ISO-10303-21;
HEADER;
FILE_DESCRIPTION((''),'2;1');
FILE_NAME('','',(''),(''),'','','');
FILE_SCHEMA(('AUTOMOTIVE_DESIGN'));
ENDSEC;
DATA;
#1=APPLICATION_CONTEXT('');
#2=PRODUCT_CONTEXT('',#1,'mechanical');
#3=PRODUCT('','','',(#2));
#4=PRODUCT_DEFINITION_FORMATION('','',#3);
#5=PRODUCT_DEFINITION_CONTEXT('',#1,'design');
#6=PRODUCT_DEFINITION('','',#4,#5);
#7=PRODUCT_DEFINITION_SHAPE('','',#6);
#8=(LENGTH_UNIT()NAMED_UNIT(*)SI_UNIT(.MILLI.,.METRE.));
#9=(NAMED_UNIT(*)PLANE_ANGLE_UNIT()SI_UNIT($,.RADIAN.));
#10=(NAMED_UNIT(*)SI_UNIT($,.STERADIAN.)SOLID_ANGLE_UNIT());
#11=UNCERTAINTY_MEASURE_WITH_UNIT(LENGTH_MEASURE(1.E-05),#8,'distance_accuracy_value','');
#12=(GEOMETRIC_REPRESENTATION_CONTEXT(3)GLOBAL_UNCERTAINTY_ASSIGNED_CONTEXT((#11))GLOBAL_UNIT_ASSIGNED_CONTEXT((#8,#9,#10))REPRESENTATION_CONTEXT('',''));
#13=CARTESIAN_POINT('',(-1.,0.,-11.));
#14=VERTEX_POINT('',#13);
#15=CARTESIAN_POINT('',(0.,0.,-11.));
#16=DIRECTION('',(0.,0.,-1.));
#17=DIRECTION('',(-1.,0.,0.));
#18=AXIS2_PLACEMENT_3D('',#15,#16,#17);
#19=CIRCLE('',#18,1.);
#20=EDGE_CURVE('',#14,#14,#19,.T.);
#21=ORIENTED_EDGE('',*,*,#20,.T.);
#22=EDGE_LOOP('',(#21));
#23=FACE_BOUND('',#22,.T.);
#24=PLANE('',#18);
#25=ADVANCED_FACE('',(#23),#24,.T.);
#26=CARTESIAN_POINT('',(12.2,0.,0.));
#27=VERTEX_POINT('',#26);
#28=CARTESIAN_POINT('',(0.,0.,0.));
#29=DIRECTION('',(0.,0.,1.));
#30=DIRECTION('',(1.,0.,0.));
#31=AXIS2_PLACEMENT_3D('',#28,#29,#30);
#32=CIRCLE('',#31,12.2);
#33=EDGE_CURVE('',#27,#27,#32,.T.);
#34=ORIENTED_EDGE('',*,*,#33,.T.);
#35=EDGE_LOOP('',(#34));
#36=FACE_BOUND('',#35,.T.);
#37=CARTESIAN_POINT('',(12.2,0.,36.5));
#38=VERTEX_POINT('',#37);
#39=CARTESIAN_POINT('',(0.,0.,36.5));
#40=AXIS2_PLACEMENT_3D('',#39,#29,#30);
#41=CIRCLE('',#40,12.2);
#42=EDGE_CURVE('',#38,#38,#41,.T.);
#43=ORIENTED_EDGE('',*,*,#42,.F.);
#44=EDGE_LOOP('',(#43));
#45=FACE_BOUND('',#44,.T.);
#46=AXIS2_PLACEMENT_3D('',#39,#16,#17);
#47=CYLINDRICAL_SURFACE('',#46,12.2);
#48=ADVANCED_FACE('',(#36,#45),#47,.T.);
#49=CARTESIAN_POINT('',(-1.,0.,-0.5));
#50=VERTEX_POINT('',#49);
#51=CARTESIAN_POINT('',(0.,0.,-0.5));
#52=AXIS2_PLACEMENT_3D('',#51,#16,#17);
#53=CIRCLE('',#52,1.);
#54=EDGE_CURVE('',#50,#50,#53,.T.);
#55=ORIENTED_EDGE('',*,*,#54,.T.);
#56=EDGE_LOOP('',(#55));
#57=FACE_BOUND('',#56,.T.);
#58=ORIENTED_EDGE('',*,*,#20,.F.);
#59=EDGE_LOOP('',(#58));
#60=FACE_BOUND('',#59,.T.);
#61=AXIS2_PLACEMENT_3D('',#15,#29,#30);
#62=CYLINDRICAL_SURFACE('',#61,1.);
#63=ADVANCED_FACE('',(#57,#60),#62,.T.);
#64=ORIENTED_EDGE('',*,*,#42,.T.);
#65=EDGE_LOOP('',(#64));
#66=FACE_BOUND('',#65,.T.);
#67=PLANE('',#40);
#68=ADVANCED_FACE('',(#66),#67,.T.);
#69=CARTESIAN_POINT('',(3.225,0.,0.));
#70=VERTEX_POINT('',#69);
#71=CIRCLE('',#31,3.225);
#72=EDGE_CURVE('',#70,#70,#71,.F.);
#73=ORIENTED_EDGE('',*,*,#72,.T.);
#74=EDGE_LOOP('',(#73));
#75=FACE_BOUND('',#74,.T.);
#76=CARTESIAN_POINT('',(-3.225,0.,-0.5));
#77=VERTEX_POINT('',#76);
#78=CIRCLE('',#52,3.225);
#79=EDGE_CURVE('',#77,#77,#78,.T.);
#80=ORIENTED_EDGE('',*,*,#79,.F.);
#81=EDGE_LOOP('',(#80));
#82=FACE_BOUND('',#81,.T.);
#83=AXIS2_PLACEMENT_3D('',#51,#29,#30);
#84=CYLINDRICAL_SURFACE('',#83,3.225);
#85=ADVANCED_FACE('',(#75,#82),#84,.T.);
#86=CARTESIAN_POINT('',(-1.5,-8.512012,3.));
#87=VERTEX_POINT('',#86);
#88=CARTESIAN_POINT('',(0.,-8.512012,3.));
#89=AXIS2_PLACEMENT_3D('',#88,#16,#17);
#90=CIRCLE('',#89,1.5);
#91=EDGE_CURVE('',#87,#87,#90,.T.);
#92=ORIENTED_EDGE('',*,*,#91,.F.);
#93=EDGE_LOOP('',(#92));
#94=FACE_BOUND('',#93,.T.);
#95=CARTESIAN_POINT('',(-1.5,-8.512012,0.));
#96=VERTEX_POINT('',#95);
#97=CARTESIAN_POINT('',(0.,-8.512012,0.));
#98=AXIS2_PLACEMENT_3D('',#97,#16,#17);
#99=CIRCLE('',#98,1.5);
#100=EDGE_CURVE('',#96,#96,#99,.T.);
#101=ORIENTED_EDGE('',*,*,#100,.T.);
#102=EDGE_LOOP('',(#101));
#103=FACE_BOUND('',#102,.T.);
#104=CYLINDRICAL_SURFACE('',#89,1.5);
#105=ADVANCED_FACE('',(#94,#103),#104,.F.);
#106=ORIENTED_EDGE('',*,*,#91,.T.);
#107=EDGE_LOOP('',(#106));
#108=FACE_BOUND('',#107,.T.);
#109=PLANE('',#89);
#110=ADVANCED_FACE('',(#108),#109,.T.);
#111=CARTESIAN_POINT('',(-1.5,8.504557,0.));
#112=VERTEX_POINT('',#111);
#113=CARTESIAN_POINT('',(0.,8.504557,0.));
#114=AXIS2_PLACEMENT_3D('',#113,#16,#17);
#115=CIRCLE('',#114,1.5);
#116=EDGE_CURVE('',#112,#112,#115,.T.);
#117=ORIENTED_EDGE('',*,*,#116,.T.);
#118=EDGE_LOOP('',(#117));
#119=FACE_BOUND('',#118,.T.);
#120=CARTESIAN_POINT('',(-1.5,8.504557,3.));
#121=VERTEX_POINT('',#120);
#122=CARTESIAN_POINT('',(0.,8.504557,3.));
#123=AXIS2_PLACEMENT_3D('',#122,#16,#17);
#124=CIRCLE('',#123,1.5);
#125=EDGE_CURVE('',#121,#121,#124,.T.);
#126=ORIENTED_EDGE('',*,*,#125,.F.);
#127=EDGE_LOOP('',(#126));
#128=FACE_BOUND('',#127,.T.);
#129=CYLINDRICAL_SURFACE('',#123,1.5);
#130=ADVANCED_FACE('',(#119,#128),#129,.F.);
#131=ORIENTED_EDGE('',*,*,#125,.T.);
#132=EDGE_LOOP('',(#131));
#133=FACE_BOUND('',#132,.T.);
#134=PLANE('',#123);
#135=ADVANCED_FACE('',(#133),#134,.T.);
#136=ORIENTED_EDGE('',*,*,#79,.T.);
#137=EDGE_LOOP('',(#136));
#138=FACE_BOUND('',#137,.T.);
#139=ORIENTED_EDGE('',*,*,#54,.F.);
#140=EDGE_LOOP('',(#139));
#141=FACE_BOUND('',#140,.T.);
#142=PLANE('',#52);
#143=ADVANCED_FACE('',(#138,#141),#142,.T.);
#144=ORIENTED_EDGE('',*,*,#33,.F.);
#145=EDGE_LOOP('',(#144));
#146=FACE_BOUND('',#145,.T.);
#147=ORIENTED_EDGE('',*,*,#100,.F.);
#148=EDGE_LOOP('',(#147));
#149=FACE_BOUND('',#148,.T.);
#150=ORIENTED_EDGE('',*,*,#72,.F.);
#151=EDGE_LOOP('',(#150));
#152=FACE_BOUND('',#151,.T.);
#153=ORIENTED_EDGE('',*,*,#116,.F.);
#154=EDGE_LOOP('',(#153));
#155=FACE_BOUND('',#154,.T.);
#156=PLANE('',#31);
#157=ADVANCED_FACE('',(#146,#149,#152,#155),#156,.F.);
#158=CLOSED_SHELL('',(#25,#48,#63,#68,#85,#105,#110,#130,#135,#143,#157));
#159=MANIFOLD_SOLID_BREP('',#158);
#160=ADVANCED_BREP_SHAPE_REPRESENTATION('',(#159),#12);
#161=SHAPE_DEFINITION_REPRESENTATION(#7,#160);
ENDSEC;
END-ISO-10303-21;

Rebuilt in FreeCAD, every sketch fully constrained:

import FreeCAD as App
import Part
import Sketcher
from FreeCAD import Vector

doc = App.newDocument("Part")
body = doc.addObject("PartDesign::Body", "Body")

sketch1 = body.newObject("Sketcher::SketchObject", "Sketch")
sketch1.AttachmentSupport = (doc.getObject("XY_Plane"), [""])
sketch1.MapMode = "FlatFace"
sketch1.addGeometry(Part.Circle(Vector(0, 0, 0), Vector(0, 0, 1), 12), False)
sketch1.addConstraint([
    Sketcher.Constraint("Coincident", 0, 3, -1, 1),
    Sketcher.Constraint("Diameter", 0, 24.4),
])
pad1 = body.newObject("PartDesign::Pad", "Pad")
pad1.Profile = sketch1
pad1.Length = 36.5

sketch2 = body.newObject("Sketcher::SketchObject", "Sketch001")
sketch2.AttachmentSupport = (doc.getObject("XY_Plane"), [""])
sketch2.MapMode = "FlatFace"
sketch2.addGeometry(Part.Circle(Vector(0, 0, 0), Vector(0, 0, 1), 1), False)
sketch2.addConstraint([
    Sketcher.Constraint("Coincident", 0, 3, -1, 1),
    Sketcher.Constraint("Diameter", 0, 2.0),
])
pad2 = body.newObject("PartDesign::Pad", "Pad001")
pad2.Profile = sketch2
pad2.Length = 11
pad2.Reversed = True

sketch3 = body.newObject("Sketcher::SketchObject", "Sketch002")
sketch3.AttachmentSupport = (doc.getObject("XY_Plane"), [""])
sketch3.MapMode = "FlatFace"
sketch3.addGeometry(Part.Circle(Vector(0, 0, 0), Vector(0, 0, 1), 3.2), False)
sketch3.addConstraint([
    Sketcher.Constraint("Coincident", 0, 3, -1, 1),
    Sketcher.Constraint("Diameter", 0, 6.45),
])
pad3 = body.newObject("PartDesign::Pad", "Pad002")
pad3.Profile = sketch3
pad3.Length = 0.5
pad3.Reversed = True

sketch4 = body.newObject("Sketcher::SketchObject", "Sketch003")
sketch4.AttachmentSupport = (doc.getObject("XY_Plane"), [""])
sketch4.MapMode = "FlatFace"
sketch4.addGeometry([
    Part.Circle(Vector(0, 8.5, 0), Vector(0, 0, 1), 1.5),
    Part.Circle(Vector(0, -8.5, 0), Vector(0, 0, 1), 1.5),
], False)
sketch4.addConstraint([
    Sketcher.Constraint("Equal", 0, 1),
    Sketcher.Constraint("PointOnObject", 0, 3, -2),
    Sketcher.Constraint("PointOnObject", 1, 3, -2),
    Sketcher.Constraint("Diameter", 0, 3.0),
    Sketcher.Constraint("DistanceY", 1, 3, 0, 3, 17.01657),
    Sketcher.Constraint("DistanceY", -1, 1, 0, 3, 8.504557),
])
pocket1 = body.newObject("PartDesign::Pocket", "Pocket")
pocket1.Profile = sketch4
pocket1.Length = 3
pocket1.Reversed = True

doc.recompute()
